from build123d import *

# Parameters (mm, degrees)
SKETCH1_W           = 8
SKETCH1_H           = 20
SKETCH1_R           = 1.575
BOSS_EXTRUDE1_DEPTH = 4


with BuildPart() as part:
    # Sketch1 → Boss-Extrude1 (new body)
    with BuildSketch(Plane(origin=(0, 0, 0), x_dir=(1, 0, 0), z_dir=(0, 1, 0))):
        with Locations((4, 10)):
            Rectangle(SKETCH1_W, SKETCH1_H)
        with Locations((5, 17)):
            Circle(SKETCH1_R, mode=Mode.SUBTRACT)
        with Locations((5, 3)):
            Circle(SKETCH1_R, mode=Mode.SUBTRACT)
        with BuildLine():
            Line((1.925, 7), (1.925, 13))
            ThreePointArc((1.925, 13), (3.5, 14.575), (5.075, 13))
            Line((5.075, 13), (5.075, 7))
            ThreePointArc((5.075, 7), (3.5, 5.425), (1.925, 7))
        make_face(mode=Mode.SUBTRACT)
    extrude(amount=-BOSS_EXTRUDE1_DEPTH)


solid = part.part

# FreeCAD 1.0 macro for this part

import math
import FreeCAD as App
import Part
import Sketcher
Q = App.Units.Quantity


def add_polygon(sketch, points):
    """Adds a closed chain of lines whose ends are joined by coincident constraints."""
    first, n = sketch.GeometryCount, len(points)
    for a, b in zip(points, points[1:] + points[:1]):
        sketch.addGeometry(Part.LineSegment(App.Vector(*a, 0), App.Vector(*b, 0)), False)
    for i in range(n):
        sketch.addConstraint(Sketcher.Constraint("Coincident", first + i, 2, first + (i + 1) % n, 1))

doc = App.newDocument("Part")
body = doc.addObject("PartDesign::Body", "Body")

# Sketch on XZ plane
sketch1 = body.newObject("Sketcher::SketchObject", "Sketch")
sketch1.AttachmentSupport = (doc.getObject("XZ_Plane"), [""])
sketch1.MapMode = "FlatFace"
add_polygon(sketch1, [(0, -20), (0, 0), (8, 0), (8, -20)])  # lines 0-3
sketch1.addGeometry(Part.Circle(App.Vector(5, -3, 0), App.Vector(0, 0, 1), 1.6), False)  # 4
sketch1.addGeometry(Part.ArcOfCircle(Part.Circle(App.Vector(3.5, -7, 0), App.Vector(0, 0, 1), 1.6), math.radians(0), math.radians(180)), False)  # 5
sketch1.addGeometry(Part.LineSegment(App.Vector(1.9, -7, 0), App.Vector(1.9, -13, 0)), False)  # 6
sketch1.addGeometry(Part.ArcOfCircle(Part.Circle(App.Vector(3.5, -13, 0), App.Vector(0, 0, 1), 1.6), math.radians(180), math.radians(360)), False)  # 7
sketch1.addGeometry(Part.LineSegment(App.Vector(5.1, -13, 0), App.Vector(5.1, -7, 0)), False)  # 8
sketch1.addGeometry(Part.Circle(App.Vector(5, -17, 0), App.Vector(0, 0, 1), 1.6), False)  # 9
sketch1.addConstraint([
    Sketcher.Constraint("Tangent", 5, 2, 6, 1),
    Sketcher.Constraint("Tangent", 6, 2, 7, 1),
    Sketcher.Constraint("Tangent", 7, 2, 8, 1),
    Sketcher.Constraint("Tangent", 8, 2, 5, 1),
    Sketcher.Constraint("Vertical", 0),
    Sketcher.Constraint("Horizontal", 1),
    Sketcher.Constraint("Vertical", 2),
    Sketcher.Constraint("Horizontal", 3),
    Sketcher.Constraint("Vertical", 6),
    Sketcher.Constraint("Vertical", 8),
    Sketcher.Constraint("Coincident", 0, 2, -1, 1),
    Sketcher.Constraint("Equal", 4, 5),
    Sketcher.Constraint("Equal", 7, 9),
    Sketcher.Constraint("Vertical", 4, 3, 9, 3),
    Sketcher.Constraint("Diameter", 4, Q("3.15 mm")),
    Sketcher.Constraint("DistanceX", 1, 1, 1, 2, Q("8 mm")),
    Sketcher.Constraint("DistanceY", 0, 1, 0, 2, Q("20 mm")),
    Sketcher.Constraint("DistanceY", 6, 2, 6, 1, Q("6 mm")),
    Sketcher.Constraint("DistanceX", -1, 1, 4, 3, Q("5 mm")),
    Sketcher.Constraint("DistanceY", 4, 3, -1, 1, Q("3 mm")),
    Sketcher.Constraint("DistanceY", 5, 3, -1, 1, Q("7 mm")),
    Sketcher.Constraint("DistanceY", 9, 3, -1, 1, Q("17 mm")),
    Sketcher.Constraint("DistanceX", -1, 1, 5, 3, Q("3.5 mm")),
])
pad1 = body.newObject("PartDesign::Pad", "Pad")
pad1.Profile = sketch1
pad1.Length = 4

doc.recompute()
